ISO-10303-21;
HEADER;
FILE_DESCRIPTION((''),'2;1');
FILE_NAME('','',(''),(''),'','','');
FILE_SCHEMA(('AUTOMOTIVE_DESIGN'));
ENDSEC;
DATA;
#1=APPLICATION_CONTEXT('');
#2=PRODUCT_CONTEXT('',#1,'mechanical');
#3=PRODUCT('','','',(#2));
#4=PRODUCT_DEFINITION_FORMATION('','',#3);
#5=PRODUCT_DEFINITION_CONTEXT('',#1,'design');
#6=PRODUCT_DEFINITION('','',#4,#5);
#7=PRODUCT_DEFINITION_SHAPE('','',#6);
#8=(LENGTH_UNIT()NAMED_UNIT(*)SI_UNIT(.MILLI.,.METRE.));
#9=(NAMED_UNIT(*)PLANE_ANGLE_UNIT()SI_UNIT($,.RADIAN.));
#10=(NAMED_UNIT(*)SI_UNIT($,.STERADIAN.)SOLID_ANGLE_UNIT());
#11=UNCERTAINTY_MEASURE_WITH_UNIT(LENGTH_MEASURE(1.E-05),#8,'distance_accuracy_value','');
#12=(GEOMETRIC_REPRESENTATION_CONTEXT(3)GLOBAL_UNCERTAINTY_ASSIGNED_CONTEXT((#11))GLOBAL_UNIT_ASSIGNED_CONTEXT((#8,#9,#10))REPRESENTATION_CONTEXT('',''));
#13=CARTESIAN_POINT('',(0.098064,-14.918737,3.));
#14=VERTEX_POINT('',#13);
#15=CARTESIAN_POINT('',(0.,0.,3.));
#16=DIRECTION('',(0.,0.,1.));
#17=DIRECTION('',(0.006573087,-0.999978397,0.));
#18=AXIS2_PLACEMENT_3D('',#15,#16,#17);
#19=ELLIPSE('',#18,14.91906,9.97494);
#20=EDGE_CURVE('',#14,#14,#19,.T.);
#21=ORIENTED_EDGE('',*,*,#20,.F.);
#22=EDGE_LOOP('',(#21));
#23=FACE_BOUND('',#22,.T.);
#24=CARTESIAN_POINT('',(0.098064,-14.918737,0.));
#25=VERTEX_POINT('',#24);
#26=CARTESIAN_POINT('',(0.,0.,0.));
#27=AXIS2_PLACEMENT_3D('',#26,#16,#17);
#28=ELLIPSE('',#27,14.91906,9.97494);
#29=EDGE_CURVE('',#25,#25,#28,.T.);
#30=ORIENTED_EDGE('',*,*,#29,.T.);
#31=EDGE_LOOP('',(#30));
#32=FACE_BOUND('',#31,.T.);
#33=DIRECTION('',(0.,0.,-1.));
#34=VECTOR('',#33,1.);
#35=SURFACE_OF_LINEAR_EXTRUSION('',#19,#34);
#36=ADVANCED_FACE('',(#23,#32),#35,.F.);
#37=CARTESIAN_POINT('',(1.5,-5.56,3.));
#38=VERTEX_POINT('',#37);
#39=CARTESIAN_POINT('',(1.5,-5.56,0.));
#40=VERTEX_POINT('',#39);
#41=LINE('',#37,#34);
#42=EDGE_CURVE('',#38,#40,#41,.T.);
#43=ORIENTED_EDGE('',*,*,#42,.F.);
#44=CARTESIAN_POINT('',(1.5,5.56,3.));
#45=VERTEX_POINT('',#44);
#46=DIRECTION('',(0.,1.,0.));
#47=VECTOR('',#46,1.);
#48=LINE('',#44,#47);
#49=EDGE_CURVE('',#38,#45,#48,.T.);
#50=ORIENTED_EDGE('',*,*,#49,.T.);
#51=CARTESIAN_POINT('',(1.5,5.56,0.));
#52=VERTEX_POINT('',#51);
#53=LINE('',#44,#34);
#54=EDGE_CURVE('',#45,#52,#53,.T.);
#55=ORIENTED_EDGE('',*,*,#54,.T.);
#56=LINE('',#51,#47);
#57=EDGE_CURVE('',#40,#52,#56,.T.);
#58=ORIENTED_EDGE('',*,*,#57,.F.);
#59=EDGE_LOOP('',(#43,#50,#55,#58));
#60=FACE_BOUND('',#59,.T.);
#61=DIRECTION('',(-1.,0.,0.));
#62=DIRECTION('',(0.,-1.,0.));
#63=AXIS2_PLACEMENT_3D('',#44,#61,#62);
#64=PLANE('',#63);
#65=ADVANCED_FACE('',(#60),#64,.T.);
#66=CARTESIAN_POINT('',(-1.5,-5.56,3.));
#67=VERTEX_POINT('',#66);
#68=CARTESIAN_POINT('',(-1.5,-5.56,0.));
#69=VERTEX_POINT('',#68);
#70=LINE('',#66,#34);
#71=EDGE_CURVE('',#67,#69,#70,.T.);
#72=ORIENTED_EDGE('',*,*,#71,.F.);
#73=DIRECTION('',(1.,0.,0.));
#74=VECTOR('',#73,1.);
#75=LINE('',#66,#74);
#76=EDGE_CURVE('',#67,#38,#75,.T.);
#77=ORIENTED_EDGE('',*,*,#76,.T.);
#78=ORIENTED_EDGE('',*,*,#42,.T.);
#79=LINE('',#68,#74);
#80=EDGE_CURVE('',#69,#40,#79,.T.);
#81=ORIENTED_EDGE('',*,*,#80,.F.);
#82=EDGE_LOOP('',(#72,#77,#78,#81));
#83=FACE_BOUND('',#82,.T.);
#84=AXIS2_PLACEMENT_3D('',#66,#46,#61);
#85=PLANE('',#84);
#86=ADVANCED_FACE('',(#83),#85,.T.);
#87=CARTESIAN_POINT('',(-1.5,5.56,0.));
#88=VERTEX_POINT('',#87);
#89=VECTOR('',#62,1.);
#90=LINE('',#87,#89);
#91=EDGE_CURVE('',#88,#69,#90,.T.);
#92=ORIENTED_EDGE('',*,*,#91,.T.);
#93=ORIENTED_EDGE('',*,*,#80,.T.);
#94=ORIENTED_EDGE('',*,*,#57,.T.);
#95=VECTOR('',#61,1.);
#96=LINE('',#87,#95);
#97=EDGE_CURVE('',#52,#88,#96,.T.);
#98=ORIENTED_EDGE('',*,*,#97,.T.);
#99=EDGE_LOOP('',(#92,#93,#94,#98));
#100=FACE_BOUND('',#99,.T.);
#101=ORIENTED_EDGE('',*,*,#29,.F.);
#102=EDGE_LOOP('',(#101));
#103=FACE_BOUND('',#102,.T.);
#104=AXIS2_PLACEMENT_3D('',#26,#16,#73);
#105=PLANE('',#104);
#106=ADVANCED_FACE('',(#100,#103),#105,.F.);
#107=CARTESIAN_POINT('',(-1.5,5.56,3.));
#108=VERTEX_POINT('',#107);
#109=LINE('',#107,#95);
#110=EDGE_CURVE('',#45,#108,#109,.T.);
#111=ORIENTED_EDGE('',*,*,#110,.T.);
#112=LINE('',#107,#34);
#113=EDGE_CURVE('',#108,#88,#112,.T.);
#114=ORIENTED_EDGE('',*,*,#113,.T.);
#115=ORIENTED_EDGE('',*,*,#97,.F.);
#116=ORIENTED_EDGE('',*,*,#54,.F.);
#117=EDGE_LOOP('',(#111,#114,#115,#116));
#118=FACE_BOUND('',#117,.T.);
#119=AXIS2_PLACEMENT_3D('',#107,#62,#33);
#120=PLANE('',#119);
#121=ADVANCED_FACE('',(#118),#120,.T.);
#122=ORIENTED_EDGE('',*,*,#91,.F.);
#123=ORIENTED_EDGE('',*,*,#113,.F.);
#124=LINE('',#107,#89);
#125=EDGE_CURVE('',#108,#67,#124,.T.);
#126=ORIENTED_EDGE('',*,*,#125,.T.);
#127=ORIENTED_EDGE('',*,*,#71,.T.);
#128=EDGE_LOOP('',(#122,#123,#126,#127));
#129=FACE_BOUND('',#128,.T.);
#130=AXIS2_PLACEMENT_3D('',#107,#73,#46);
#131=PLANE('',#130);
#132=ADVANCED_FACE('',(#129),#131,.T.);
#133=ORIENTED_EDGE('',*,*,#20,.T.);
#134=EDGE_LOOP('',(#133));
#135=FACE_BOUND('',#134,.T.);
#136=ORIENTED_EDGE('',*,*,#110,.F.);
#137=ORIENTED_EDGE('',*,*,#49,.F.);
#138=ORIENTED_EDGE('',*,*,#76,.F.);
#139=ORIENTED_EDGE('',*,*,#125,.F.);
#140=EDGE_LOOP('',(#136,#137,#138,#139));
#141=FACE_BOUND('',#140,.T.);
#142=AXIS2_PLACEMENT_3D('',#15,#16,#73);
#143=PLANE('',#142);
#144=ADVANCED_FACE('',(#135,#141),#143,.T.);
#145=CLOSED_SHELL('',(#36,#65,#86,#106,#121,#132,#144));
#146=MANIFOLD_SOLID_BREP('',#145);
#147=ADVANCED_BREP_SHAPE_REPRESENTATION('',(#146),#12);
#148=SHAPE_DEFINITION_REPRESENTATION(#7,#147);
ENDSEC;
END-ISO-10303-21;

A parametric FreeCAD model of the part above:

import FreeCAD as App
import Part
import Sketcher
from FreeCAD import Vector

doc = App.newDocument("Part")
params = doc.addObject("Spreadsheet::Sheet", "Params")
for row, (alias, value) in enumerate([
    ("sketch1_width", "3 mm"),
    ("sketch1_height", "11.12 mm"),
    ("pad1_length", "3 mm"),
], start=1):
    params.set(f"A{row}", alias)
    params.set(f"B{row}", "=" + value)
    params.setAlias(f"B{row}", alias)

body = doc.addObject("PartDesign::Body", "Body")

sketch1 = body.newObject("Sketcher::SketchObject", "Sketch")
sketch1.AttachmentSupport = (doc.getObject("XY_Plane"), [""])
sketch1.MapMode = "FlatFace"
sketch1.addGeometry(Part.Ellipse(Vector(0.098064, -14.918737, 0), Vector(9.974725, 0.065566, 0), Vector(0, 0, 0)), False)
sketch1.addGeometry(Part.LineSegment(Vector(1.5, -5.56, 0), Vector(-1.5, -5.56, 0)), False)
sketch1.addGeometry(Part.LineSegment(Vector(-1.5, -5.56, 0), Vector(-1.5, 5.56, 0)), False)
sketch1.addGeometry(Part.LineSegment(Vector(-1.5, 5.56, 0), Vector(1.5, 5.56, 0)), False)
sketch1.addGeometry(Part.LineSegment(Vector(1.5, 5.56, 0), Vector(1.5, -5.56, 0)), False)
sketch1.addConstraint(Sketcher.Constraint("Block", 0))
sketch1.addConstraint(Sketcher.Constraint("Coincident", 1, 2, 2, 1))
sketch1.addConstraint(Sketcher.Constraint("Coincident", 2, 2, 3, 1))
sketch1.addConstraint(Sketcher.Constraint("Coincident", 3, 2, 4, 1))
sketch1.addConstraint(Sketcher.Constraint("Coincident", 4, 2, 1, 1))
sketch1.addConstraint(Sketcher.Constraint("Horizontal", 1))
sketch1.addConstraint(Sketcher.Constraint("Vertical", 2))
sketch1.addConstraint(Sketcher.Constraint("Horizontal", 3))
sketch1.addConstraint(Sketcher.Constraint("Vertical", 4))
sketch1.addConstraint(Sketcher.Constraint("Symmetric", 1, 2, 3, 2, -1, 1))
sketch1.addConstraint(Sketcher.Constraint("DistanceX", 1, 2, 1, 1, 3.0))
sketch1.addConstraint(Sketcher.Constraint("DistanceY", 2, 1, 2, 2, 11.12))
sketch1.setExpression("Constraints[10]", "Params.sketch1_width")
sketch1.setExpression("Constraints[11]", "Params.sketch1_height")
pad1 = body.newObject("PartDesign::Pad", "Pad")
pad1.Profile = sketch1
pad1.setExpression("Length", "Params.pad1_length")

doc.recompute()
